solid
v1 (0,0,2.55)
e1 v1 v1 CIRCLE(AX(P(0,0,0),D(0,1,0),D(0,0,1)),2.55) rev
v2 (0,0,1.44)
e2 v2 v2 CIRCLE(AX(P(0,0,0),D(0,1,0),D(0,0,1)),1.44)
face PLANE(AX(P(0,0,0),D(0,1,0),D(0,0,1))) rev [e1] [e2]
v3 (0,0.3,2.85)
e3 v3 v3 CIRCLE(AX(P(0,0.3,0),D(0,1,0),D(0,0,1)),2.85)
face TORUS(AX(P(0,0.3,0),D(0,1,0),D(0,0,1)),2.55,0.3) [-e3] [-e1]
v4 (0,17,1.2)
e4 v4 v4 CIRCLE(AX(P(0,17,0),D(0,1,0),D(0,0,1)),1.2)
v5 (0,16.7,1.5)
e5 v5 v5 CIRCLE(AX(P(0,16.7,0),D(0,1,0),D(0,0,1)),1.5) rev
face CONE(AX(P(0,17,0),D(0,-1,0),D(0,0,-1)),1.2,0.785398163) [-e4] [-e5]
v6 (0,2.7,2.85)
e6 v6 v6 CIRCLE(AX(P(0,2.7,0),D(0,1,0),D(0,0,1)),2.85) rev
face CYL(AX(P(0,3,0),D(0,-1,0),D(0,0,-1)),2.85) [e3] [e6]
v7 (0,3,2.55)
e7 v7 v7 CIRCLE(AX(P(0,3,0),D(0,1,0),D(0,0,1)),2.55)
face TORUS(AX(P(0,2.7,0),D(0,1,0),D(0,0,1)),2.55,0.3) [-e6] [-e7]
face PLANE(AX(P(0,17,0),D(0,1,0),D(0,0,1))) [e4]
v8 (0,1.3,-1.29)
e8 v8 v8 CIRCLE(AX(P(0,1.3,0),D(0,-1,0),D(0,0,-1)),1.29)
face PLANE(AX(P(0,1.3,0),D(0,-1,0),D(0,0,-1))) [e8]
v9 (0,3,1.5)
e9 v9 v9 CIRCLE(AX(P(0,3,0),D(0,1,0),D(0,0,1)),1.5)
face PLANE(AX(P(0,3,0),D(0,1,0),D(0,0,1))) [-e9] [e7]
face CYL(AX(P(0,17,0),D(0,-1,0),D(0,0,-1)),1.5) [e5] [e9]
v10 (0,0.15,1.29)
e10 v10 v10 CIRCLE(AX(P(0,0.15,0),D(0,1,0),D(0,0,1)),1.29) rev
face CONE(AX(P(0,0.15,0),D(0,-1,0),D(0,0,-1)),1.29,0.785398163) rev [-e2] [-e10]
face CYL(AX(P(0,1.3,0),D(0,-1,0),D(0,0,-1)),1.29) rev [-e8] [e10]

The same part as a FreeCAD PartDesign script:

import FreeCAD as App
import Part
import Sketcher
Q = App.Units.Quantity


def edges_at(feature, points):
    """Names of the edges that pass closest to the given points."""
    edges = feature.Shape.Edges
    near = lambda p: min(range(len(edges)), key=lambda i: edges[i].distToShape(Part.Vertex(*p))[0])
    return sorted({f"Edge{near(p) + 1}" for p in points})

doc = App.newDocument("Part")
body = doc.addObject("PartDesign::Body", "Body")

# Sketch on XZ plane
sketch1 = body.newObject("Sketcher::SketchObject", "Sketch")
sketch1.AttachmentSupport = (doc.getObject("XZ_Plane"), [""])
sketch1.MapMode = "FlatFace"
sketch1.addGeometry(Part.Circle(App.Vector(0, 0, 0), App.Vector(0, 0, 1), 2.85), False)
sketch1.addConstraint(Sketcher.Constraint("Coincident", 0, 3, -1, 1))
sketch1.addConstraint(Sketcher.Constraint("Diameter", 0, Q("5.7 mm")))
pad1 = body.newObject("PartDesign::Pad", "Pad")
pad1.Profile = sketch1
pad1.Length = 3
pad1.Reversed = True

# Sketch on XZ plane
sketch2 = body.newObject("Sketcher::SketchObject", "Sketch001")
sketch2.AttachmentSupport = (doc.getObject("XZ_Plane"), [""])
sketch2.MapMode = "FlatFace"
sketch2.AttachmentOffset = App.Placement(App.Vector(0, 0, -3), App.Rotation())
sketch2.addGeometry(Part.Circle(App.Vector(0, 0, 0), App.Vector(0, 0, 1), 1.5), False)
sketch2.addConstraint(Sketcher.Constraint("Coincident", 0, 3, -1, 1))
sketch2.addConstraint(Sketcher.Constraint("Diameter", 0, Q("3 mm")))
pad2 = body.newObject("PartDesign::Pad", "Pad001")
pad2.Profile = sketch2
pad2.Length = 14
pad2.Reversed = True

# Sketch on XZ plane
sketch3 = body.newObject("Sketcher::SketchObject", "Sketch002")
sketch3.AttachmentSupport = (doc.getObject("XZ_Plane"), [""])
sketch3.MapMode = "FlatFace"
sketch3.addGeometry(Part.Circle(App.Vector(0, 0, 0), App.Vector(0, 0, 1), 1.29), False)
sketch3.addConstraint(Sketcher.Constraint("Coincident", 0, 3, -1, 1))
sketch3.addConstraint(Sketcher.Constraint("Diameter", 0, Q("2.58 mm")))
pocket1 = body.newObject("PartDesign::Pocket", "Pocket")
pocket1.Profile = sketch3
pocket1.Length = 1.3
doc.recompute()

fillet = body.newObject("PartDesign::Fillet", "Fillet")
fillet.Base = (pocket1, edges_at(pocket1, [(0, 0, -2.85), (0, 3, -2.85)]))
fillet.Radius = 0.3
doc.recompute()

chamfer = body.newObject("PartDesign::Chamfer", "Chamfer")
chamfer.Base = (fillet, edges_at(fillet, [(0, 17, -1.5)]))
chamfer.Size = 0.3
doc.recompute()

chamfer2 = body.newObject("PartDesign::Chamfer", "Chamfer001")
chamfer2.Base = (chamfer, edges_at(chamfer, [(0, 0, 1.29)]))
chamfer2.Size = 0.15

doc.recompute()
